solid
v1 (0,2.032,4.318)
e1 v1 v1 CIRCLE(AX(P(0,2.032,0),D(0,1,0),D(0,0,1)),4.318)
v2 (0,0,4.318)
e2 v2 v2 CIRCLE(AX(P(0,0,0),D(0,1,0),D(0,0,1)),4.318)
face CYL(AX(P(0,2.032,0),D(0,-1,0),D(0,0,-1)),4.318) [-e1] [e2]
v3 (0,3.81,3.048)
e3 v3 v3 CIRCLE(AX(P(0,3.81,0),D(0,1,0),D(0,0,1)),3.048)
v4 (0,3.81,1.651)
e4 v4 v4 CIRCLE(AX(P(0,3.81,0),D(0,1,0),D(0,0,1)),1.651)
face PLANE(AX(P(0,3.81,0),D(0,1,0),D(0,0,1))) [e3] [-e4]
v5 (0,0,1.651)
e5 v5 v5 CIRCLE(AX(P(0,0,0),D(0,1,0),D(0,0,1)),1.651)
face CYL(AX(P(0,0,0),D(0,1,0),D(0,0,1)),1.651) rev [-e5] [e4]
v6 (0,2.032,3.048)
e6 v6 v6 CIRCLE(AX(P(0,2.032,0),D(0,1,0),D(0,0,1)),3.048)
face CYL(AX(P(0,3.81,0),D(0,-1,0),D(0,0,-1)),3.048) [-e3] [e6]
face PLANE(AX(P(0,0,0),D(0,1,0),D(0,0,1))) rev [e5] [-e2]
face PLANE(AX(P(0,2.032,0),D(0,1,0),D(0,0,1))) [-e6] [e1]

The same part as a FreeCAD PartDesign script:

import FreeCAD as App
import Part
import Sketcher
from FreeCAD import Vector
Q = App.Units.Quantity

doc = App.newDocument("Part")
body = doc.addObject("PartDesign::Body", "Body")

sketch1 = doc.addObject("Sketcher::SketchObject", "Sketch")
body.addObject(sketch1)
sketch1.AttachmentSupport = (doc.XZ_Plane, [""])
sketch1.MapMode = "FlatFace"
sketch1.addGeometry(Part.Circle(Vector(0, 0, 0), Vector(0, 0, 1), 4.318), False)
sketch1.addConstraint(Sketcher.Constraint("Coincident", 0, 3, -1, 1))
sketch1.addConstraint(Sketcher.Constraint("Diameter", 0, Q("0.34 in")))
pad1 = doc.addObject("PartDesign::Pad", "Pad")
body.addObject(pad1)
pad1.Profile = sketch1
pad1.Length = Q("0.08 in")
pad1.Reversed = True

sketch2 = doc.addObject("Sketcher::SketchObject", "Sketch001")
body.addObject(sketch2)
sketch2.AttachmentSupport = (doc.XZ_Plane, [""])
sketch2.MapMode = "FlatFace"
sketch2.AttachmentOffset = App.Placement(Vector(0, 0, -0.08 * 25.4), App.Rotation())
sketch2.addGeometry(Part.Circle(Vector(0, 0, 0), Vector(0, 0, 1), 3.048), False)
sketch2.addConstraint(Sketcher.Constraint("Coincident", 0, 3, -1, 1))
sketch2.addConstraint(Sketcher.Constraint("Diameter", 0, Q("0.24 in")))
pad2 = doc.addObject("PartDesign::Pad", "Pad001")
body.addObject(pad2)
pad2.Profile = sketch2
pad2.Length = Q("0.07 in")
pad2.Reversed = True

sketch3 = doc.addObject("Sketcher::SketchObject", "Sketch002")
body.addObject(sketch3)
sketch3.AttachmentSupport = (doc.XZ_Plane, [""])
sketch3.MapMode = "FlatFace"
sketch3.AttachmentOffset = App.Placement(Vector(0, 0, -0.15 * 25.4), App.Rotation())
sketch3.addGeometry(Part.Circle(Vector(0, 0, 0), Vector(0, 0, 1), 1.651), False)
sketch3.addConstraint(Sketcher.Constraint("Coincident", 0, 3, -1, 1))
sketch3.addConstraint(Sketcher.Constraint("Diameter", 0, Q("0.13 in")))
pocket1 = doc.addObject("PartDesign::Pocket", "Pocket")
body.addObject(pocket1)
pocket1.Profile = sketch3
pocket1.Type = "ThroughAll"
pocket1.Reversed = True

doc.recompute()
